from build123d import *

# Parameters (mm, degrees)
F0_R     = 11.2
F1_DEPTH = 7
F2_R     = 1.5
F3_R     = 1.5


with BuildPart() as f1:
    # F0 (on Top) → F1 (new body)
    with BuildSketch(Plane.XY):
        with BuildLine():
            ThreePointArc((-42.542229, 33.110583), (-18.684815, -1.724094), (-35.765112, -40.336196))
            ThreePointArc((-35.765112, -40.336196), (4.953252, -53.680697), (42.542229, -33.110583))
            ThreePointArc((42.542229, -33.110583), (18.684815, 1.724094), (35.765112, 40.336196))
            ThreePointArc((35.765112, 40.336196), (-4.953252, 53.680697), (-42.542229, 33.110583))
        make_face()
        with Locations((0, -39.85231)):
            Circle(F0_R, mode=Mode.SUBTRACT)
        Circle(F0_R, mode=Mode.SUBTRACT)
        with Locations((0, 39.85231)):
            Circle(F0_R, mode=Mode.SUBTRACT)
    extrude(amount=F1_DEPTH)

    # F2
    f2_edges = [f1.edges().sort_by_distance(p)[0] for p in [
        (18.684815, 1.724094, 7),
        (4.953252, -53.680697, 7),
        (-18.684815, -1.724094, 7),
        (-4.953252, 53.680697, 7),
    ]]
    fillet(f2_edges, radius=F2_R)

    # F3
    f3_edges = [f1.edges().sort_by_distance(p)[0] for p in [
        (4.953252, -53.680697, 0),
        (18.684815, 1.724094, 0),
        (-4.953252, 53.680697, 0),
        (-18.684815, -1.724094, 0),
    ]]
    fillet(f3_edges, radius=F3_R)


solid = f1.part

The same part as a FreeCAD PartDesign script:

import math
import FreeCAD as App
import Part
import Sketcher

V = App.Vector
Q = App.Units.Quantity


def edges_at(feature, points):
    """Names of the edges that pass closest to the given points."""
    edges = feature.Shape.Edges
    near = lambda p: min(range(len(edges)), key=lambda i: edges[i].distToShape(Part.Vertex(*p))[0])
    return sorted({f"Edge{near(p) + 1}" for p in points})

doc = App.newDocument("Part")
body = doc.addObject("PartDesign::Body", "Body")

sketch1 = body.newObject("Sketcher::SketchObject", "Sketch")
sketch1.AttachmentSupport = (doc.getObject("XY_Plane"), [""])
sketch1.MapMode = "FlatFace"
sketch1.addGeometry([
    Part.ArcOfCircle(Part.Circle(V(-62, -6, 0), V(0, 0, 1), 43), math.radians(-53), math.radians(64)),
    Part.ArcOfCircle(Part.Circle(V(0, 0, 0), V(0, 0, 1), 54), math.radians(-132), math.radians(-38)),
    Part.ArcOfCircle(Part.Circle(V(62, 6, 0), V(0, 0, 1), 43), math.radians(127), math.radians(244)),
    Part.ArcOfCircle(Part.Circle(V(0, 0, 0), V(0, 0, 1), 54), math.radians(48), math.radians(142)),
    Part.Circle(V(0, -40, 0), V(0, 0, 1), 11),
    Part.Circle(V(0, 0, 0), V(0, 0, 1), 11),
    Part.Circle(V(0, 40, 0), V(0, 0, 1), 11),
], False)
sketch1.addConstraint([
    Sketcher.Constraint("Coincident", 0, 1, 1, 1),
    Sketcher.Constraint("Coincident", 1, 2, 2, 2),
    Sketcher.Constraint("Coincident", 2, 1, 3, 1),
    Sketcher.Constraint("Coincident", 3, 2, 0, 2),
    Sketcher.Constraint("Coincident", 1, 3, -1, 1),
    Sketcher.Constraint("Coincident", 3, 3, -1, 1),
    Sketcher.Constraint("Coincident", 5, 3, -1, 1),
    Sketcher.Constraint("Equal", 0, 2),
    Sketcher.Constraint("Equal", 1, 3),
    Sketcher.Constraint("Equal", 4, 5),
    Sketcher.Constraint("Equal", 5, 6),
    Sketcher.Constraint("Symmetric", 0, 3, 2, 3, -1, 1),
    Sketcher.Constraint("Symmetric", 4, 3, 6, 3, -1, 1),
    Sketcher.Constraint("PointOnObject", 4, 3, -2),
    Sketcher.Constraint("Diameter", 4, Q("22.4 mm")),
    Sketcher.Constraint("Radius", 0, Q("43.360759 mm")),
    Sketcher.Constraint("Radius", 1, Q("53.908738 mm")),
    Sketcher.Constraint("DistanceY", 4, 3, -1, 1, Q("39.85231 mm")),
    Sketcher.Constraint("DistanceX", 0, 1, -1, 1, Q("35.765112 mm")),
    Sketcher.Constraint("DistanceX", -1, 1, 1, 2, Q("42.542229 mm")),
])
pad1 = body.newObject("PartDesign::Pad", "Pad")
pad1.Profile = sketch1
pad1.Length = 7
doc.recompute()

fillet = body.newObject("PartDesign::Fillet", "Fillet")
fillet.Base = (pad1, edges_at(pad1, [
    (18.685, 1.724, 7),
    (4.953, -53.681, 7),
    (-18.685, -1.724, 7),
    (-4.953, 53.681, 7),
]))
fillet.Radius = 1.5
doc.recompute()

fillet2 = body.newObject("PartDesign::Fillet", "Fillet001")
fillet2.Base = (fillet, edges_at(fillet, [
    (4.953, -53.681, 0),
    (18.685, 1.724, 0),
    (-4.953, 53.681, 0),
    (-18.685, -1.724, 0),
]))
fillet2.Radius = 1.5

doc.recompute()
